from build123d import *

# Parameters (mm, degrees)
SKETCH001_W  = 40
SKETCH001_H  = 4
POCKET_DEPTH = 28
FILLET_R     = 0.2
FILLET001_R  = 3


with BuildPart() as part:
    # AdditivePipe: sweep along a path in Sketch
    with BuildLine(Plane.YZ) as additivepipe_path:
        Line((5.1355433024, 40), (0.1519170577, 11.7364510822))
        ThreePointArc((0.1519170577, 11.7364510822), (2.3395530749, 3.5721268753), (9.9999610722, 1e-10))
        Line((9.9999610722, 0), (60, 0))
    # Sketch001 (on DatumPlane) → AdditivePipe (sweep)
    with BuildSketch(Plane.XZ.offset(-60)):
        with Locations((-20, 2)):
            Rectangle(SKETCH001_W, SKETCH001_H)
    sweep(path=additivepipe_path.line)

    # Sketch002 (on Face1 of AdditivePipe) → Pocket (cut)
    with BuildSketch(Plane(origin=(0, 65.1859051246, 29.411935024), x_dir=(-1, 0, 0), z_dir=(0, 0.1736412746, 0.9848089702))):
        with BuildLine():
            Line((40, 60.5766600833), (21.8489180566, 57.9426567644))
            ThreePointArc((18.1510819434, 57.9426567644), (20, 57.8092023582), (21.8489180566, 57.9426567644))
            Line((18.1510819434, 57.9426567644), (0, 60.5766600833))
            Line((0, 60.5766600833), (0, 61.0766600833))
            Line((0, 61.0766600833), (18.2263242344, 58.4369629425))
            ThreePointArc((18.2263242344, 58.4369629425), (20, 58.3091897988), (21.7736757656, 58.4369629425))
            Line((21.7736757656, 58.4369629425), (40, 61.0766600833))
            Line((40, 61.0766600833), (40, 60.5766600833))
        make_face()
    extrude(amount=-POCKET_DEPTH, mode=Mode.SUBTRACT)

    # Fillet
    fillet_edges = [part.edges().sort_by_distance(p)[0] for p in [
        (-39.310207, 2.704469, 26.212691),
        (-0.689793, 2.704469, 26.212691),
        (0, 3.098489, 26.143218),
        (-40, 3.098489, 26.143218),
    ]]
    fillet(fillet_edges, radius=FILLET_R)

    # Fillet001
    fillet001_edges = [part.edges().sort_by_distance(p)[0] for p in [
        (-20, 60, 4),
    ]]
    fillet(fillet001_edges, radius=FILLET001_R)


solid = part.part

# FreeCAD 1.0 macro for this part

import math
import FreeCAD as App
import Part
import Sketcher
Q = App.Units.Quantity


def edges_at(feature, points):
    """Names of the edges that pass closest to the given points."""
    edges = feature.Shape.Edges
    near = lambda p: min(range(len(edges)), key=lambda i: edges[i].distToShape(Part.Vertex(*p))[0])
    return sorted({f"Edge{near(p) + 1}" for p in points})


def add_polygon(sketch, points):
    """Adds a closed chain of lines whose ends are joined by coincident constraints."""
    first, n = sketch.GeometryCount, len(points)
    for a, b in zip(points, points[1:] + points[:1]):
        sketch.addGeometry(Part.LineSegment(App.Vector(*a, 0), App.Vector(*b, 0)), False)
    for i in range(n):
        sketch.addConstraint(Sketcher.Constraint("Coincident", first + i, 2, first + (i + 1) % n, 1))

doc = App.newDocument("Part")
body = doc.addObject("PartDesign::Body", "Body")

# Sketch on XZ plane
sketch1 = doc.addObject("Sketcher::SketchObject", "Sketch")
body.addObject(sketch1)
sketch1.AttachmentSupport = (doc.XZ_Plane, [""])
sketch1.MapMode = "FlatFace"
sketch1.AttachmentOffset = App.Placement(App.Vector(0, 0, -60), App.Rotation())
add_polygon(sketch1, [(-40, 4), (-40, 0), (0, 0), (0, 4)])  # lines 0-3
sketch1.addConstraint([
    Sketcher.Constraint("Vertical", 0),
    Sketcher.Constraint("Horizontal", 1),
    Sketcher.Constraint("Vertical", 2),
    Sketcher.Constraint("Horizontal", 3),
    Sketcher.Constraint("Coincident", 1, 2, -1, 1),
    Sketcher.Constraint("DistanceX", 1, 1, 1, 2, Q("40 mm")),
    Sketcher.Constraint("DistanceY", 0, 2, 0, 1, Q("4 mm")),
])

# Sketch on YZ plane
sketch2 = doc.addObject("Sketcher::SketchObject", "Sketch001")
body.addObject(sketch2)
sketch2.AttachmentSupport = (doc.YZ_Plane, [""])
sketch2.MapMode = "FlatFace"
sketch2.addGeometry([
    Part.LineSegment(App.Vector(5.135543, 40, 0), App.Vector(0.151917, 11.736451, 0)),
    Part.ArcOfCircle(Part.Circle(App.Vector(10, 10, 0), App.Vector(0, 0, 1), 10), math.radians(170.000179), math.radians(269.999777)),
    Part.LineSegment(App.Vector(9.999961, 0, 0), App.Vector(60, 0, 0)),
], False)
sketch2.addConstraint([
    Sketcher.Constraint("Coincident", 0, 2, 1, 1),
    Sketcher.Constraint("Coincident", 1, 2, 2, 1),
    Sketcher.Constraint("Horizontal", 2),
    Sketcher.Constraint("PointOnObject", 1, 2, -1),
    Sketcher.Constraint("Radius", 1, Q("10 mm")),
    Sketcher.Constraint("Angle", 0, Q("-100 deg")),
    Sketcher.Constraint("DistanceX", -1, 1, 1, 3, Q("10 mm")),
    Sketcher.Constraint("DistanceY", -1, 1, 0, 1, Q("40 mm")),
    Sketcher.Constraint("DistanceX", -1, 1, 2, 2, Q("60 mm")),
    Sketcher.Constraint("DistanceX", 2, 1, 2, 2, Q("50.000039 mm")),
    Sketcher.Constraint("Distance", 0, Q("28.69956 mm")),
])
doc.recompute()

additivepipe = doc.addObject("PartDesign::AdditivePipe", "AdditivePipe")
body.addObject(additivepipe)
additivepipe.Profile = sketch1
additivepipe.Spine = (sketch2, ["Edge1", "Edge2", "Edge3"])

# Sketch on an angled plane
sketch3 = doc.addObject("Sketcher::SketchObject", "Sketch002")
body.addObject(sketch3)
sketch3.Placement = App.Placement(App.Vector(0, 65.185905, 29.411935), App.Rotation(App.Vector(-1, 0, 0), App.Vector(0, -0.98480897, 0.173641275), App.Vector(0, 0.173641275, 0.98480897), "ZXY"))
sketch3.addGeometry([
    Part.LineSegment(App.Vector(21.848918, 57.942657, 0), App.Vector(40, 60.57666, 0)),  # 0
    Part.LineSegment(App.Vector(40, 60.57666, 0), App.Vector(40, 61.07666, 0)),  # 1
    Part.LineSegment(App.Vector(40, 61.07666, 0), App.Vector(21.773676, 58.436963, 0)),  # 2
    Part.ArcOfCircle(Part.Circle(App.Vector(20, 70.683667, 0), App.Vector(0, 0, 1), 12.374477), math.radians(-98.240781), math.radians(-81.759219)),  # 3
    Part.LineSegment(App.Vector(18.226324, 58.436963, 0), App.Vector(0, 61.07666, 0)),  # 4
    Part.LineSegment(App.Vector(0, 61.07666, 0), App.Vector(0, 60.57666, 0)),  # 5
    Part.LineSegment(App.Vector(0, 60.57666, 0), App.Vector(18.151082, 57.942657, 0)),  # 6
    Part.ArcOfCircle(Part.Circle(App.Vector(20, 70.683667, 0), App.Vector(0, 0, 1), 12.874465), math.radians(-98.256868), math.radians(-81.743132)),  # 7
], False)
sketch3.addConstraint([
    Sketcher.Constraint("Coincident", 0, 2, 1, 1),
    Sketcher.Constraint("Coincident", 1, 2, 2, 1),
    Sketcher.Constraint("Tangent", 2, 2, 3, 2),
    Sketcher.Constraint("Tangent", 3, 1, 4, 1),
    Sketcher.Constraint("Coincident", 4, 2, 5, 1),
    Sketcher.Constraint("Coincident", 5, 2, 6, 1),
    Sketcher.Constraint("Tangent", 6, 2, 7, 1),
    Sketcher.Constraint("Tangent", 7, 2, 0, 1),
    Sketcher.Constraint("Vertical", 1),
    Sketcher.Constraint("Vertical", 5),
    Sketcher.Constraint("Coincident", 7, 3, 3, 3),
    Sketcher.Constraint("PointOnObject", 4, 2, -2),
    Sketcher.Constraint("Horizontal", 2, 2, 3, 1),
    Sketcher.Constraint("Horizontal", 1, 2, 4, 2),
    Sketcher.Constraint("Horizontal", 0, 2, 5, 2),
    Sketcher.Constraint("DistanceY", 1, 1, 1, 2, Q("0.5 mm")),
    Sketcher.Constraint("DistanceX", -1, 1, 3, 3, Q("20 mm")),
    Sketcher.Constraint("Radius", 3, Q("12.374477 mm")),
    Sketcher.Constraint("Radius", 7, Q("12.874465 mm")),
    Sketcher.Constraint("DistanceY", -1, 1, 0, 2, Q("60.57666 mm")),
    Sketcher.Constraint("DistanceX", -1, 1, 6, 2, Q("18.151082 mm")),
])
pocket1 = doc.addObject("PartDesign::Pocket", "Pocket")
body.addObject(pocket1)
pocket1.Profile = sketch3
pocket1.Length = 28
doc.recompute()

fillet = doc.addObject("PartDesign::Fillet", "Fillet")
body.addObject(fillet)
fillet.Base = (pocket1, edges_at(pocket1, [
    (-39.31, 2.704, 26.213),
    (-0.69, 2.704, 26.213),
    (0, 3.098, 26.143),
    (-40, 3.098, 26.143),
]))
fillet.Radius = 0.2
doc.recompute()

fillet2 = doc.addObject("PartDesign::Fillet", "Fillet001")
body.addObject(fillet2)
fillet2.Base = (fillet, edges_at(fillet, [(-20, 60, 4)]))
fillet2.Radius = 3

doc.recompute()
